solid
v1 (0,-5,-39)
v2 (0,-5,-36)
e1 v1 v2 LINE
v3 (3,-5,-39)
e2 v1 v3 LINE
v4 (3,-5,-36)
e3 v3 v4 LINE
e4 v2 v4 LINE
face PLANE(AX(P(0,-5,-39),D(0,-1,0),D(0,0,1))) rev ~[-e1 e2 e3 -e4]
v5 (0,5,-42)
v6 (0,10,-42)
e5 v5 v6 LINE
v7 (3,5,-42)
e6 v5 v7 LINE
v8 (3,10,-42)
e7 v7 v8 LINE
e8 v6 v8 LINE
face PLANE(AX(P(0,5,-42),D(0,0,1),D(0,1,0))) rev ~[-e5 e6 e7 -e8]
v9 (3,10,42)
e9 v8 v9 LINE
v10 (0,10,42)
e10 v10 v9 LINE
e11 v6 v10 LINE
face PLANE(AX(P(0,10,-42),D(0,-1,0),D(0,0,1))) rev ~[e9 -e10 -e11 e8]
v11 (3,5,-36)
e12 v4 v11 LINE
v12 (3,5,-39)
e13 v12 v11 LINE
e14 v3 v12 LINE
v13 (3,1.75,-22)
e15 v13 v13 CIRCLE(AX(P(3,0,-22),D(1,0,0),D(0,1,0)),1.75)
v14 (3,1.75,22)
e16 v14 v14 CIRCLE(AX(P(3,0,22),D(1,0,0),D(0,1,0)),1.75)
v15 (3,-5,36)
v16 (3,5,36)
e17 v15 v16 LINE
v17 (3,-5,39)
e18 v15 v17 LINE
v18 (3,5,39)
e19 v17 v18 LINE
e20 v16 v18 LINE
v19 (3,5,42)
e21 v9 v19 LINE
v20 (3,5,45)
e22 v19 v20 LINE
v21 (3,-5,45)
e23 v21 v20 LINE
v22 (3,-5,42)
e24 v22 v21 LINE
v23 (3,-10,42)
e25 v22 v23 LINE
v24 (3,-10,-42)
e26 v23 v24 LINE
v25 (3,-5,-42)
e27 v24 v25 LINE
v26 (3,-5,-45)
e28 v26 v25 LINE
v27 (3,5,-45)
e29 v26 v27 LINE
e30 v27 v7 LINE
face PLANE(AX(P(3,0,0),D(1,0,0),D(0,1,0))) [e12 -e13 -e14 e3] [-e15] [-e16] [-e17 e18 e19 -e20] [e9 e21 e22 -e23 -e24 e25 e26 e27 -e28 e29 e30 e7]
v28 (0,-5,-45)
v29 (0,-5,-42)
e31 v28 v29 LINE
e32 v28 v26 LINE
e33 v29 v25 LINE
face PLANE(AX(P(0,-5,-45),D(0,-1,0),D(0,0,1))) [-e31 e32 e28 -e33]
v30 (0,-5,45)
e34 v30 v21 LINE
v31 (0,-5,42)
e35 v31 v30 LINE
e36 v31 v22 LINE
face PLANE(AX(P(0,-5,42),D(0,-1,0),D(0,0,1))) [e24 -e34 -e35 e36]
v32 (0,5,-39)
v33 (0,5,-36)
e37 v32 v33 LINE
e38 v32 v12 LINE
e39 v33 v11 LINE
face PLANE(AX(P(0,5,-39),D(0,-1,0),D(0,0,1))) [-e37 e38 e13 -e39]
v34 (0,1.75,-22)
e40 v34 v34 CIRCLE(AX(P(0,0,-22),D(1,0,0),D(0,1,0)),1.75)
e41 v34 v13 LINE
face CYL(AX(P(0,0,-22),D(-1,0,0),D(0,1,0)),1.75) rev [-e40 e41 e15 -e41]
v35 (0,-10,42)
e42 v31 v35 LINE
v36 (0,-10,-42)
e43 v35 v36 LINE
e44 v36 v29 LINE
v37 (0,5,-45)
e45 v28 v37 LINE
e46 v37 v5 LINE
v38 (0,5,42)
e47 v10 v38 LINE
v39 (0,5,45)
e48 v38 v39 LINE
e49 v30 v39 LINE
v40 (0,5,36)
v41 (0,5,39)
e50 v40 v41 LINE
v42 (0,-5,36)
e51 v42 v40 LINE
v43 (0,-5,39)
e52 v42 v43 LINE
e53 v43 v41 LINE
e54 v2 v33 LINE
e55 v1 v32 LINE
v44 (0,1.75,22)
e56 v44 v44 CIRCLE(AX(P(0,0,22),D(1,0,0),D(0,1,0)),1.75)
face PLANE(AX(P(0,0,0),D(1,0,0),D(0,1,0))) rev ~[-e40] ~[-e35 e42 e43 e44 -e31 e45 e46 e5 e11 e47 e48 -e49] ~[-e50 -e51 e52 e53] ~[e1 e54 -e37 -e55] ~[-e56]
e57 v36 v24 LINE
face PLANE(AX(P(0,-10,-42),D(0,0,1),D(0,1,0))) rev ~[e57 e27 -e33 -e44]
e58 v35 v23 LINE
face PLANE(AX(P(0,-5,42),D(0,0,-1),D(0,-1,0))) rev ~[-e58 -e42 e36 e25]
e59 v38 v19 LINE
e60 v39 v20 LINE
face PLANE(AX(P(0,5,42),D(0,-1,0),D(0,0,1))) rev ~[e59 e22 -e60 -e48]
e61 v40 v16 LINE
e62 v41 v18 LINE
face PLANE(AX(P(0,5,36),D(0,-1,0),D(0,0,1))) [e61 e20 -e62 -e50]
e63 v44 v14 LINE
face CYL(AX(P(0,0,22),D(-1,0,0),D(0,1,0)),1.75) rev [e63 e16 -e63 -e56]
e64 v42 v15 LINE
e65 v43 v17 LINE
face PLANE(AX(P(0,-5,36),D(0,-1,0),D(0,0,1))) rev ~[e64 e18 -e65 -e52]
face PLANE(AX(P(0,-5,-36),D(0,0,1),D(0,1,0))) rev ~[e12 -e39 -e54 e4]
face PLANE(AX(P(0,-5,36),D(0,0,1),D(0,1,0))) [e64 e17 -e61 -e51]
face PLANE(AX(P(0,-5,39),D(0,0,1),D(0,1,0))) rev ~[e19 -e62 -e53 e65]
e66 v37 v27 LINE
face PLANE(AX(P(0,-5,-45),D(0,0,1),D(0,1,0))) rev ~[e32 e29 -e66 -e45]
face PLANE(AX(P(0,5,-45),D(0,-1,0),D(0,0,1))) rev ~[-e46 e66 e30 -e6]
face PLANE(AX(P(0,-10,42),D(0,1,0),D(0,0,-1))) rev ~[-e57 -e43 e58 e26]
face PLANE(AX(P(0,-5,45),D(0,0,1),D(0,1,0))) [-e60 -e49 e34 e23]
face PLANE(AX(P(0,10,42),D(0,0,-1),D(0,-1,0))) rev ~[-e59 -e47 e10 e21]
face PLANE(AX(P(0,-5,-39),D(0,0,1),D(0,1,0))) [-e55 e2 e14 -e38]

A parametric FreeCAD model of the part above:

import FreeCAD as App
import Part
import Sketcher

doc = App.newDocument("Part")
body = doc.addObject("PartDesign::Body", "Body")

sketch1 = body.newObject("Sketcher::SketchObject", "Sketch")
sketch1.AttachmentSupport = (doc.getObject("YZ_Plane"), [""])
sketch1.MapMode = "FlatFace"
sketch1.addGeometry([
    Part.LineSegment(App.Vector(10, -42, 0), App.Vector(10, 42, 0)),
    Part.LineSegment(App.Vector(10, 42, 0), App.Vector(5, 42, 0)),
    Part.LineSegment(App.Vector(5, 42, 0), App.Vector(5, 45, 0)),
    Part.LineSegment(App.Vector(5, 45, 0), App.Vector(-5, 45, 0)),
    Part.LineSegment(App.Vector(-5, 45, 0), App.Vector(-5, 42, 0)),
    Part.LineSegment(App.Vector(-5, 42, 0), App.Vector(-10, 42, 0)),
    Part.LineSegment(App.Vector(-10, 42, 0), App.Vector(-10, -42, 0)),
    Part.LineSegment(App.Vector(-10, -42, 0), App.Vector(-5, -42, 0)),
    Part.LineSegment(App.Vector(-5, -42, 0), App.Vector(-5, -45, 0)),
    Part.LineSegment(App.Vector(-5, -45, 0), App.Vector(5, -45, 0)),
    Part.LineSegment(App.Vector(5, -45, 0), App.Vector(5, -42, 0)),
    Part.LineSegment(App.Vector(5, -42, 0), App.Vector(10, -42, 0)),
    Part.LineSegment(App.Vector(5, -39, 0), App.Vector(-5, -39, 0)),
    Part.LineSegment(App.Vector(-5, -39, 0), App.Vector(-5, -36, 0)),
    Part.LineSegment(App.Vector(-5, -36, 0), App.Vector(5, -36, 0)),
    Part.LineSegment(App.Vector(5, -36, 0), App.Vector(5, -39, 0)),
    Part.Circle(App.Vector(0, -22, 0), App.Vector(0, 0, 1), 1.75),
    Part.Circle(App.Vector(0, 22, 0), App.Vector(0, 0, 1), 1.75),
    Part.LineSegment(App.Vector(5, 36, 0), App.Vector(-5, 36, 0)),
    Part.LineSegment(App.Vector(-5, 36, 0), App.Vector(-5, 39, 0)),
    Part.LineSegment(App.Vector(-5, 39, 0), App.Vector(5, 39, 0)),
    Part.LineSegment(App.Vector(5, 39, 0), App.Vector(5, 36, 0)),
], False)
sketch1.addConstraint([
    Sketcher.Constraint("Coincident", 0, 2, 1, 1),
    Sketcher.Constraint("Coincident", 1, 2, 2, 1),
    Sketcher.Constraint("Coincident", 2, 2, 3, 1),
    Sketcher.Constraint("Coincident", 3, 2, 4, 1),
    Sketcher.Constraint("Coincident", 4, 2, 5, 1),
    Sketcher.Constraint("Coincident", 5, 2, 6, 1),
    Sketcher.Constraint("Coincident", 6, 2, 7, 1),
    Sketcher.Constraint("Coincident", 7, 2, 8, 1),
    Sketcher.Constraint("Coincident", 8, 2, 9, 1),
    Sketcher.Constraint("Coincident", 9, 2, 10, 1),
    Sketcher.Constraint("Coincident", 10, 2, 11, 1),
    Sketcher.Constraint("Coincident", 11, 2, 0, 1),
    Sketcher.Constraint("Coincident", 12, 2, 13, 1),
    Sketcher.Constraint("Coincident", 13, 2, 14, 1),
    Sketcher.Constraint("Coincident", 14, 2, 15, 1),
    Sketcher.Constraint("Coincident", 15, 2, 12, 1),
    Sketcher.Constraint("Coincident", 18, 2, 19, 1),
    Sketcher.Constraint("Coincident", 19, 2, 20, 1),
    Sketcher.Constraint("Coincident", 20, 2, 21, 1),
    Sketcher.Constraint("Coincident", 21, 2, 18, 1),
    Sketcher.Constraint("Vertical", 0),
    Sketcher.Constraint("Horizontal", 1),
    Sketcher.Constraint("Vertical", 2),
    Sketcher.Constraint("Horizontal", 3),
    Sketcher.Constraint("Vertical", 4),
    Sketcher.Constraint("Horizontal", 5),
    Sketcher.Constraint("Vertical", 6),
    Sketcher.Constraint("Horizontal", 7),
    Sketcher.Constraint("Vertical", 8),
    Sketcher.Constraint("Horizontal", 9),
    Sketcher.Constraint("Vertical", 10),
    Sketcher.Constraint("Horizontal", 11),
    Sketcher.Constraint("Horizontal", 12),
    Sketcher.Constraint("Vertical", 13),
    Sketcher.Constraint("Horizontal", 14),
    Sketcher.Constraint("Vertical", 15),
    Sketcher.Constraint("Horizontal", 18),
    Sketcher.Constraint("Vertical", 19),
    Sketcher.Constraint("Horizontal", 20),
    Sketcher.Constraint("Vertical", 21),
    Sketcher.Constraint("Equal", 16, 17),
    Sketcher.Constraint("Symmetric", 16, 3, 17, 3, -1, 1),
    Sketcher.Constraint("Symmetric", 0, 2, 6, 2, -1, 1),
    Sketcher.Constraint("Symmetric", 2, 2, 8, 2, -1, 1),
    Sketcher.Constraint("Symmetric", 4, 2, 10, 2, -1, 1),
    Sketcher.Constraint("Symmetric", 14, 2, 18, 2, -1, 1),
    Sketcher.Constraint("Symmetric", 12, 2, 20, 2, -1, 1),
    Sketcher.Constraint("Symmetric", 1, 2, 4, 2, -2),
    Sketcher.Constraint("PointOnObject", 16, 3, -2),
    Sketcher.Constraint("Vertical", 8, 2, 12, 2),
    Sketcher.Constraint("Vertical", 10, 2, 14, 2),
    Sketcher.Constraint("Equal", 10, 13),
    Sketcher.Constraint("Diameter", 16, 3.5),
    Sketcher.Constraint("DistanceX", 1, 2, 1, 1, 5.0),
    Sketcher.Constraint("DistanceX", 3, 2, 3, 1, 10.0),
    Sketcher.Constraint("DistanceY", 0, 1, 0, 2, 84.0),
    Sketcher.Constraint("DistanceY", 2, 1, 2, 2, 3.0),
    Sketcher.Constraint("DistanceY", 16, 3, -1, 1, 22.0),
    Sketcher.Constraint("DistanceY", 12, 2, -1, 1, 39.0),
])
pad1 = body.newObject("PartDesign::Pad", "Pad")
pad1.Profile = sketch1
pad1.Length = 3

doc.recompute()
